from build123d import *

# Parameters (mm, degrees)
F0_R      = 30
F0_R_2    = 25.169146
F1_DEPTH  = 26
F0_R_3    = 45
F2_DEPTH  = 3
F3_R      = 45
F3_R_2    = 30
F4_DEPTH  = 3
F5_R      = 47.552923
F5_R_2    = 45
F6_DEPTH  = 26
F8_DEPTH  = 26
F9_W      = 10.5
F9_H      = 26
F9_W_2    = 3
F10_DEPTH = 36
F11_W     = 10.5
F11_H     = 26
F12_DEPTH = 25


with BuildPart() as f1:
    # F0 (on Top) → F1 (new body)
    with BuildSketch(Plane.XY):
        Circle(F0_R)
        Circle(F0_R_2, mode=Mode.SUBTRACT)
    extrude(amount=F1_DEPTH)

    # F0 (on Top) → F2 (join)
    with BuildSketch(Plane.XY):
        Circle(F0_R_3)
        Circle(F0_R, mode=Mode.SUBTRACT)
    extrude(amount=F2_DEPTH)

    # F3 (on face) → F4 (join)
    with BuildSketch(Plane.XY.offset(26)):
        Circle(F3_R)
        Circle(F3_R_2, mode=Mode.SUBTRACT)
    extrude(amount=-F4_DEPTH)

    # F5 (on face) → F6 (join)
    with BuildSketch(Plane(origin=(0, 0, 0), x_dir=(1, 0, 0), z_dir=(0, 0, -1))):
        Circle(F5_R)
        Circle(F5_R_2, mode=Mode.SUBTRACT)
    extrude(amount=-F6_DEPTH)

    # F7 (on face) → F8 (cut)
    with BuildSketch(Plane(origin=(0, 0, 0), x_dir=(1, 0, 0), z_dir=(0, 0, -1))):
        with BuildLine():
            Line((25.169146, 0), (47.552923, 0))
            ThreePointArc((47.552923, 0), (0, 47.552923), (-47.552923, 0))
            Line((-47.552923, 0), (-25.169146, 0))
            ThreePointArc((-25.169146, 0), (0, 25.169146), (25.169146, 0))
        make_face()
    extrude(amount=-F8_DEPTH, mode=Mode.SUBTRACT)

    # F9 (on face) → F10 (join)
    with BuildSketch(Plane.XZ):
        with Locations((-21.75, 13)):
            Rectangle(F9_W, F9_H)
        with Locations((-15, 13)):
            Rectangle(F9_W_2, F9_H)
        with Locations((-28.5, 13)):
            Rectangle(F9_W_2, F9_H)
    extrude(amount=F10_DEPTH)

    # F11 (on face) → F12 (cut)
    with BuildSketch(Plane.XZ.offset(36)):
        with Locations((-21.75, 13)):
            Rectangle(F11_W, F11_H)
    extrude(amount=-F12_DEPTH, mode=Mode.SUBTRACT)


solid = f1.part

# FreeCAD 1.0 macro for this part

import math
import FreeCAD as App
import Part
import Sketcher
from FreeCAD import Vector
Q = App.Units.Quantity


def add_polygon(sketch, points):
    """Adds a closed chain of lines whose ends are joined by coincident constraints."""
    first, n = sketch.GeometryCount, len(points)
    for a, b in zip(points, points[1:] + points[:1]):
        sketch.addGeometry(Part.LineSegment(App.Vector(*a, 0), App.Vector(*b, 0)), False)
    for i in range(n):
        sketch.addConstraint(Sketcher.Constraint("Coincident", first + i, 2, first + (i + 1) % n, 1))

doc = App.newDocument("Part")
params = doc.addObject("Spreadsheet::Sheet", "Params")
for row, (alias, value) in enumerate([
    ("sketch1_diameter", "60 mm"),
    ("pad1_length", "26 mm"),
    ("sketch2_diameter", "90 mm"),
    ("sketch2_diameter2", "60 mm"),
    ("pad2_length", "3 mm"),
    ("sketch3_diameter", "90 mm"),
    ("sketch3_diameter2", "60 mm"),
    ("pad3_length", "3 mm"),
    ("sketch4_diameter", "90 mm"),
    ("pad4_length", "26 mm"),
    ("pocket1_length", "26 mm"),
    ("sketch6_height", "26 mm"),
    ("sketch6_width", "16.5 mm"),
    ("pad5_length", "36 mm"),
    ("sketch7_height", "26 mm"),
    ("sketch7_width", "10.5 mm"),
    ("pocket2_length", "25 mm"),
], start=1):
    params.set(f"A{row}", alias)
    params.set(f"B{row}", "=" + value)
    params.setAlias(f"B{row}", alias)

body = doc.addObject("PartDesign::Body", "Body")

# Sketch on XY plane
sketch1 = body.newObject("Sketcher::SketchObject", "Sketch")
sketch1.AttachmentSupport = (doc.getObject("XY_Plane"), [""])
sketch1.MapMode = "FlatFace"
sketch1.addGeometry([
    Part.Circle(Vector(0, 0, 0), Vector(0, 0, 1), 30),
    Part.Circle(Vector(0, 0, 0), Vector(0, 0, 1), 25.169146),
], False)
sketch1.addConstraint([
    Sketcher.Constraint("Coincident", 0, 3, -1, 1),
    Sketcher.Constraint("Coincident", 1, 3, -1, 1),
    Sketcher.Constraint("Diameter", 0, Q("60 mm")),
    Sketcher.Constraint("Diameter", 1, Q("50.338292 mm")),
])
sketch1.setExpression("Constraints[2]", "Params.sketch1_diameter")
pad1 = body.newObject("PartDesign::Pad", "Pad")
pad1.Profile = sketch1
pad1.setExpression("Length", "Params.pad1_length")

# Sketch on XY plane
sketch2 = body.newObject("Sketcher::SketchObject", "Sketch001")
sketch2.AttachmentSupport = (doc.getObject("XY_Plane"), [""])
sketch2.MapMode = "FlatFace"
sketch2.addGeometry([
    Part.Circle(Vector(0, 0, 0), Vector(0, 0, 1), 45),
    Part.Circle(Vector(0, 0, 0), Vector(0, 0, 1), 30),
], False)
sketch2.addConstraint([
    Sketcher.Constraint("Coincident", 0, 3, -1, 1),
    Sketcher.Constraint("Coincident", 1, 3, -1, 1),
    Sketcher.Constraint("Diameter", 0, Q("90 mm")),
    Sketcher.Constraint("Diameter", 1, Q("60 mm")),
])
sketch2.setExpression("Constraints[2]", "Params.sketch2_diameter")
sketch2.setExpression("Constraints[3]", "Params.sketch2_diameter2")
pad2 = body.newObject("PartDesign::Pad", "Pad001")
pad2.Profile = sketch2
pad2.setExpression("Length", "Params.pad2_length")

# Sketch on XY plane
sketch3 = body.newObject("Sketcher::SketchObject", "Sketch002")
sketch3.AttachmentSupport = (doc.getObject("XY_Plane"), [""])
sketch3.MapMode = "FlatFace"
sketch3.AttachmentOffset = App.Placement(Vector(0, 0, 26), App.Rotation())
sketch3.addGeometry([
    Part.Circle(Vector(0, 0, 0), Vector(0, 0, 1), 45),
    Part.Circle(Vector(0, 0, 0), Vector(0, 0, 1), 30),
], False)
sketch3.addConstraint([
    Sketcher.Constraint("Coincident", 0, 3, -1, 1),
    Sketcher.Constraint("Coincident", 1, 3, -1, 1),
    Sketcher.Constraint("Diameter", 0, Q("90 mm")),
    Sketcher.Constraint("Diameter", 1, Q("60 mm")),
])
sketch3.setExpression("Constraints[2]", "Params.sketch3_diameter")
sketch3.setExpression("Constraints[3]", "Params.sketch3_diameter2")
pad3 = body.newObject("PartDesign::Pad", "Pad002")
pad3.Profile = sketch3
pad3.setExpression("Length", "Params.pad3_length")
pad3.Reversed = True

# Sketch on XY plane
sketch4 = body.newObject("Sketcher::SketchObject", "Sketch003")
sketch4.AttachmentSupport = (doc.getObject("XY_Plane"), [""])
sketch4.MapMode = "FlatFace"
sketch4.addGeometry([
    Part.Circle(Vector(0, 0, 0), Vector(0, 0, 1), 47.552923),
    Part.Circle(Vector(0, 0, 0), Vector(0, 0, 1), 45),
], False)
sketch4.addConstraint([
    Sketcher.Constraint("Coincident", 0, 3, -1, 1),
    Sketcher.Constraint("Coincident", 1, 3, -1, 1),
    Sketcher.Constraint("Diameter", 1, Q("90 mm")),
    Sketcher.Constraint("Diameter", 0, Q("95.105846 mm")),
])
sketch4.setExpression("Constraints[2]", "Params.sketch4_diameter")
pad4 = body.newObject("PartDesign::Pad", "Pad003")
pad4.Profile = sketch4
pad4.setExpression("Length", "Params.pad4_length")

# Sketch on XY plane
sketch5 = body.newObject("Sketcher::SketchObject", "Sketch004")
sketch5.AttachmentSupport = (doc.getObject("XY_Plane"), [""])
sketch5.MapMode = "FlatFace"
sketch5.addGeometry([
    Part.LineSegment(Vector(25.169146, 0, 0), Vector(47.552923, 0, 0)),
    Part.ArcOfCircle(Part.Circle(Vector(0, 0, 0), Vector(0, 0, 1), 47.552923), math.radians(180), math.radians(360)),
    Part.LineSegment(Vector(-47.552923, 0, 0), Vector(-25.169146, 0, 0)),
    Part.ArcOfCircle(Part.Circle(Vector(0, 0, 0), Vector(0, 0, 1), 25.169146), math.radians(180), math.radians(360)),
], False)
sketch5.addConstraint([
    Sketcher.Constraint("Coincident", 0, 2, 1, 2),
    Sketcher.Constraint("Coincident", 1, 1, 2, 1),
    Sketcher.Constraint("Coincident", 2, 2, 3, 1),
    Sketcher.Constraint("Coincident", 3, 2, 0, 1),
    Sketcher.Constraint("Horizontal", 0),
    Sketcher.Constraint("Horizontal", 2),
    Sketcher.Constraint("Coincident", 1, 3, -1, 1),
    Sketcher.Constraint("Coincident", 3, 3, -1, 1),
    Sketcher.Constraint("PointOnObject", 0, 2, -1),
    Sketcher.Constraint("PointOnObject", 1, 1, -1),
    Sketcher.Constraint("Radius", 1, Q("47.552923 mm")),
    Sketcher.Constraint("Radius", 3, Q("25.169146 mm")),
])
pocket1 = body.newObject("PartDesign::Pocket", "Pocket")
pocket1.Profile = sketch5
pocket1.setExpression("Length", "Params.pocket1_length")
pocket1.Reversed = True

# Sketch on XZ plane
sketch6 = body.newObject("Sketcher::SketchObject", "Sketch005")
sketch6.AttachmentSupport = (doc.getObject("XZ_Plane"), [""])
sketch6.MapMode = "FlatFace"
add_polygon(sketch6, [(-13.5, 0), (-13.5, 26), (-30, 26), (-30, 0)])  # lines 0-3
sketch6.addConstraint([
    Sketcher.Constraint("Vertical", 0),
    Sketcher.Constraint("Horizontal", 1),
    Sketcher.Constraint("Vertical", 2),
    Sketcher.Constraint("Horizontal", 3),
    Sketcher.Constraint("PointOnObject", 2, 2, -1),
    Sketcher.Constraint("DistanceY", 0, 1, 0, 2, Q("26 mm")),
    Sketcher.Constraint("DistanceX", 1, 2, 1, 1, Q("16.5 mm")),
    Sketcher.Constraint("DistanceX", 1, 2, -1, 1, Q("30 mm")),
])
sketch6.setExpression("Constraints[9]", "Params.sketch6_height")
sketch6.setExpression("Constraints[10]", "Params.sketch6_width")
pad5 = body.newObject("PartDesign::Pad", "Pad004")
pad5.Profile = sketch6
pad5.setExpression("Length", "Params.pad5_length")

# Sketch on XZ plane
sketch7 = body.newObject("Sketcher::SketchObject", "Sketch006")
sketch7.AttachmentSupport = (doc.getObject("XZ_Plane"), [""])
sketch7.MapMode = "FlatFace"
sketch7.AttachmentOffset = App.Placement(Vector(0, 0, 36), App.Rotation())
add_polygon(sketch7, [(-27, 26), (-27, 0), (-16.5, 0), (-16.5, 26)])  # lines 0-3
sketch7.addConstraint([
    Sketcher.Constraint("Vertical", 0),
    Sketcher.Constraint("Horizontal", 1),
    Sketcher.Constraint("Vertical", 2),
    Sketcher.Constraint("Horizontal", 3),
    Sketcher.Constraint("PointOnObject", 0, 2, -1),
    Sketcher.Constraint("DistanceY", 0, 2, 0, 1, Q("26 mm")),
    Sketcher.Constraint("DistanceX", 1, 1, 1, 2, Q("10.5 mm")),
    Sketcher.Constraint("DistanceX", 0, 2, -1, 1, Q("27 mm")),
])
sketch7.setExpression("Constraints[9]", "Params.sketch7_height")
sketch7.setExpression("Constraints[10]", "Params.sketch7_width")
pocket2 = body.newObject("PartDesign::Pocket", "Pocket001")
pocket2.Profile = sketch7
pocket2.setExpression("Length", "Params.pocket2_length")

doc.recompute()
